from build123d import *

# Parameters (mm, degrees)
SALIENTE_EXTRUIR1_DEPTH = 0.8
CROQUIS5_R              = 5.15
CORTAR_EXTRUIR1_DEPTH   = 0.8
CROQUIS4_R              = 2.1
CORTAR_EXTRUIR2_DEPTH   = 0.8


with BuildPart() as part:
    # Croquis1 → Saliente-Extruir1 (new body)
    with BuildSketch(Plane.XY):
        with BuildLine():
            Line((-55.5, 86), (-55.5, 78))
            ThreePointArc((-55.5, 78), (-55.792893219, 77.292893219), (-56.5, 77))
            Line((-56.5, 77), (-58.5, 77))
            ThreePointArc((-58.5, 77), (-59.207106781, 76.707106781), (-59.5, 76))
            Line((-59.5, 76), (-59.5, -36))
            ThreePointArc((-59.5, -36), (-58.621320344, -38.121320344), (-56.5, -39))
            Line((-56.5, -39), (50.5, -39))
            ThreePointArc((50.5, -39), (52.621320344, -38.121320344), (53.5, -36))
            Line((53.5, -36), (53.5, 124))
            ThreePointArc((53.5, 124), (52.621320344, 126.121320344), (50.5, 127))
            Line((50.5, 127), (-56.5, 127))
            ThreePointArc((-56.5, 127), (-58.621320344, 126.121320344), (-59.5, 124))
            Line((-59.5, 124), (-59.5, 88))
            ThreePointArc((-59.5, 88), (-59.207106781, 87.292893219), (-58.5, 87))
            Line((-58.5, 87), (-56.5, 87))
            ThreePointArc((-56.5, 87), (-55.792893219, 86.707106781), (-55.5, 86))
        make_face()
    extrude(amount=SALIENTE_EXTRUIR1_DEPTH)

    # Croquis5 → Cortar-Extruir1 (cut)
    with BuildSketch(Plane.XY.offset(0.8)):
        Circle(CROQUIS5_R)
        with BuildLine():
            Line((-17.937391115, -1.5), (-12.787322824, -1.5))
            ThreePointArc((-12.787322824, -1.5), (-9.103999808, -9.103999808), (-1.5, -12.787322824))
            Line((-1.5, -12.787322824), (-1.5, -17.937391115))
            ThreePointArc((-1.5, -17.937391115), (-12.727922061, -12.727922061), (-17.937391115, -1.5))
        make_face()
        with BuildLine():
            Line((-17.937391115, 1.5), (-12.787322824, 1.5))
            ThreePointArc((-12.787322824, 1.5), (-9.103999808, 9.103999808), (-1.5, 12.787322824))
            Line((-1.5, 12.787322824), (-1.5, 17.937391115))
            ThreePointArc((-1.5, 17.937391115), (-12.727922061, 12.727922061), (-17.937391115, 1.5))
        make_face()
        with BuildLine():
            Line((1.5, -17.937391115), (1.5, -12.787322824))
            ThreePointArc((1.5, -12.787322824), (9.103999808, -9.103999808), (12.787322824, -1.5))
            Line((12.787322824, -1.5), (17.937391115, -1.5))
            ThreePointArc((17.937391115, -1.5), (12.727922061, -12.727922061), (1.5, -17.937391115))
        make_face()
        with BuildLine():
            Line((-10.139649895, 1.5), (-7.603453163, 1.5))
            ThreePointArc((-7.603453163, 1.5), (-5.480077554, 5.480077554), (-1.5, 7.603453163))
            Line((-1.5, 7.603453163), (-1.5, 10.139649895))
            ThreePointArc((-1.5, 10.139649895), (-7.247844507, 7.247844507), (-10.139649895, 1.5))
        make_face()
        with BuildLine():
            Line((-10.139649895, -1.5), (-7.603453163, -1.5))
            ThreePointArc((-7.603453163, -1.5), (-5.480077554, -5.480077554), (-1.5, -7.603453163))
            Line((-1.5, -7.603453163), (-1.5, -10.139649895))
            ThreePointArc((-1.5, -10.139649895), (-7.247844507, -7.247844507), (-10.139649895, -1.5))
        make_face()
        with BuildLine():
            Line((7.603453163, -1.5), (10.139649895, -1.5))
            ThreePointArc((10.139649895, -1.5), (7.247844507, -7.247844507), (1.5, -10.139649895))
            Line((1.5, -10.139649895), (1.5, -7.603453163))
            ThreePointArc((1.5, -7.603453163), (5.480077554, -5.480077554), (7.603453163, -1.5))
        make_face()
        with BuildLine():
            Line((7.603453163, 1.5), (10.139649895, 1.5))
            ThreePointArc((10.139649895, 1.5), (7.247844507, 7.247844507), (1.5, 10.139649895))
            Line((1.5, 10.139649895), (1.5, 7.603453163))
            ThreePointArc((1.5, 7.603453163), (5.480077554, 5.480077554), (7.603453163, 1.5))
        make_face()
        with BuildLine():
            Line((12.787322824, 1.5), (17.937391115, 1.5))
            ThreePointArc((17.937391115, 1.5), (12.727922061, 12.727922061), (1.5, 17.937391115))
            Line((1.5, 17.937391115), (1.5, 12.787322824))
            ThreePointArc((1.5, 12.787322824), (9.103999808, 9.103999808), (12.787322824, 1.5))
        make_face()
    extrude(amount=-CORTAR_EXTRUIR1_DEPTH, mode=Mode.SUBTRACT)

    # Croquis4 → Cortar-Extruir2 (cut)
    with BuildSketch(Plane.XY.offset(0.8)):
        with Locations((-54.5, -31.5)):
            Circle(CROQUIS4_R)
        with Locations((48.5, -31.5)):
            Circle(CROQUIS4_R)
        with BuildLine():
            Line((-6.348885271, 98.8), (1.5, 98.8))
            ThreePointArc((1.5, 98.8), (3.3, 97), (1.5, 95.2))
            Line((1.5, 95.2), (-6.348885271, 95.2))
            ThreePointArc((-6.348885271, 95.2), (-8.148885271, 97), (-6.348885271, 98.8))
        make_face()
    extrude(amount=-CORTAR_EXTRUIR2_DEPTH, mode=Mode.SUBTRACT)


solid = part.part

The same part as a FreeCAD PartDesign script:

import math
import FreeCAD as App
import Part
import Sketcher
from FreeCAD import Vector
Q = App.Units.Quantity

doc = App.newDocument("Part")
params = doc.addObject("Spreadsheet::Sheet", "Params")
for row, (alias, value) in enumerate([
    ("sketch1_radius", "1 mm"),
    ("sketch1_radius2", "3 mm"),
    ("sketch1_width", "107 mm"),
    ("sketch1_height", "8 mm"),
    ("sketch1_height2", "112 mm"),
    ("pad1_length", "0.8 mm"),
    ("sketch2_radius", "18 mm"),
    ("sketch2_diameter", "10.3 mm"),
    ("sketch2_radius2", "7.75 mm"),
    ("sketch2_radius3", "10.25 mm"),
    ("pocket1_length", "0.8 mm"),
    ("sketch3_diameter", "4.2 mm"),
    ("sketch3_radius", "1.8 mm"),
    ("pocket2_length", "0.8 mm"),
], start=1):
    params.set(f"A{row}", alias)
    params.set(f"B{row}", "=" + value)
    params.setAlias(f"B{row}", alias)

body = doc.addObject("PartDesign::Body", "Body")

# Sketch on XY plane
sketch1 = doc.addObject("Sketcher::SketchObject", "Sketch")
body.addObject(sketch1)
sketch1.AttachmentSupport = (doc.XY_Plane, [""])
sketch1.MapMode = "FlatFace"
sketch1.addGeometry(Part.LineSegment(Vector(-55.5, 86, 0), Vector(-55.5, 78, 0)), False)
sketch1.addGeometry(Part.ArcOfCircle(Part.Circle(Vector(-56.5, 78, 0), Vector(0, 0, 1), 1), math.radians(-90), math.radians(0)), False)
sketch1.addGeometry(Part.LineSegment(Vector(-56.5, 77, 0), Vector(-58.5, 77, 0)), False)
sketch1.addGeometry(Part.ArcOfCircle(Part.Circle(Vector(-58.5, 76, 0), Vector(0, 0, 1), 1), math.radians(90), math.radians(180)), False)
sketch1.addGeometry(Part.LineSegment(Vector(-59.5, 76, 0), Vector(-59.5, -36, 0)), False)
sketch1.addGeometry(Part.ArcOfCircle(Part.Circle(Vector(-56.5, -36, 0), Vector(0, 0, 1), 3), math.radians(180), math.radians(270)), False)
sketch1.addGeometry(Part.LineSegment(Vector(-56.5, -39, 0), Vector(50.5, -39, 0)), False)
sketch1.addGeometry(Part.ArcOfCircle(Part.Circle(Vector(50.5, -36, 0), Vector(0, 0, 1), 3), math.radians(-90), math.radians(0)), False)
sketch1.addGeometry(Part.LineSegment(Vector(53.5, -36, 0), Vector(53.5, 124, 0)), False)
sketch1.addGeometry(Part.ArcOfCircle(Part.Circle(Vector(50.5, 124, 0), Vector(0, 0, 1), 3), math.radians(0), math.radians(90)), False)
sketch1.addGeometry(Part.LineSegment(Vector(50.5, 127, 0), Vector(-56.5, 127, 0)), False)
sketch1.addGeometry(Part.ArcOfCircle(Part.Circle(Vector(-56.5, 124, 0), Vector(0, 0, 1), 3), math.radians(90), math.radians(180)), False)
sketch1.addGeometry(Part.LineSegment(Vector(-59.5, 124, 0), Vector(-59.5, 88, 0)), False)
sketch1.addGeometry(Part.ArcOfCircle(Part.Circle(Vector(-58.5, 88, 0), Vector(0, 0, 1), 1), math.radians(-180), math.radians(-90)), False)
sketch1.addGeometry(Part.LineSegment(Vector(-58.5, 87, 0), Vector(-56.5, 87, 0)), False)
sketch1.addGeometry(Part.ArcOfCircle(Part.Circle(Vector(-56.5, 86, 0), Vector(0, 0, 1), 1), math.radians(0), math.radians(90)), False)
sketch1.addConstraint(Sketcher.Constraint("Tangent", 0, 2, 1, 2))
sketch1.addConstraint(Sketcher.Constraint("Tangent", 1, 1, 2, 1))
sketch1.addConstraint(Sketcher.Constraint("Tangent", 2, 2, 3, 1))
sketch1.addConstraint(Sketcher.Constraint("Tangent", 3, 2, 4, 1))
sketch1.addConstraint(Sketcher.Constraint("Tangent", 4, 2, 5, 1))
sketch1.addConstraint(Sketcher.Constraint("Tangent", 5, 2, 6, 1))
sketch1.addConstraint(Sketcher.Constraint("Tangent", 6, 2, 7, 1))
sketch1.addConstraint(Sketcher.Constraint("Tangent", 7, 2, 8, 1))
sketch1.addConstraint(Sketcher.Constraint("Tangent", 8, 2, 9, 1))
sketch1.addConstraint(Sketcher.Constraint("Tangent", 9, 2, 10, 1))
sketch1.addConstraint(Sketcher.Constraint("Tangent", 10, 2, 11, 1))
sketch1.addConstraint(Sketcher.Constraint("Tangent", 11, 2, 12, 1))
sketch1.addConstraint(Sketcher.Constraint("Tangent", 12, 2, 13, 1))
sketch1.addConstraint(Sketcher.Constraint("Tangent", 13, 2, 14, 1))
sketch1.addConstraint(Sketcher.Constraint("Tangent", 14, 2, 15, 2))
sketch1.addConstraint(Sketcher.Constraint("Tangent", 15, 1, 0, 1))
sketch1.addConstraint(Sketcher.Constraint("Vertical", 0))
sketch1.addConstraint(Sketcher.Constraint("Horizontal", 2))
sketch1.addConstraint(Sketcher.Constraint("Vertical", 4))
sketch1.addConstraint(Sketcher.Constraint("Horizontal", 6))
sketch1.addConstraint(Sketcher.Constraint("Vertical", 8))
sketch1.addConstraint(Sketcher.Constraint("Horizontal", 10))
sketch1.addConstraint(Sketcher.Constraint("Vertical", 12))
sketch1.addConstraint(Sketcher.Constraint("Horizontal", 14))
sketch1.addConstraint(Sketcher.Constraint("Equal", 1, 3))
sketch1.addConstraint(Sketcher.Constraint("Equal", 5, 7))
sketch1.addConstraint(Sketcher.Constraint("Equal", 7, 9))
sketch1.addConstraint(Sketcher.Constraint("Equal", 9, 11))
sketch1.addConstraint(Sketcher.Constraint("Equal", 3, 13))
sketch1.addConstraint(Sketcher.Constraint("Equal", 13, 15))
sketch1.addConstraint(Sketcher.Constraint("Vertical", 1, 3, 5, 3))
sketch1.addConstraint(Sketcher.Constraint("Vertical", 5, 3, 11, 3))
sketch1.addConstraint(Sketcher.Constraint("Radius", 1, Q("1 mm")))
sketch1.addConstraint(Sketcher.Constraint("Radius", 5, Q("3 mm")))
sketch1.addConstraint(Sketcher.Constraint("DistanceX", 6, 1, 6, 2, Q("107 mm")))
sketch1.addConstraint(Sketcher.Constraint("DistanceY", 0, 2, 0, 1, Q("8 mm")))
sketch1.addConstraint(Sketcher.Constraint("DistanceY", 4, 2, 4, 1, Q("112 mm")))
sketch1.addConstraint(Sketcher.Constraint("DistanceY", 8, 1, 8, 2, Q("160 mm")))
sketch1.addConstraint(Sketcher.Constraint("DistanceY", -1, 1, 1, 3, Q("78 mm")))
sketch1.addConstraint(Sketcher.Constraint("DistanceX", 1, 3, -1, 1, Q("56.5 mm")))
sketch1.setExpression("Constraints[32]", "Params.sketch1_radius")
sketch1.setExpression("Constraints[33]", "Params.sketch1_radius2")
sketch1.setExpression("Constraints[34]", "Params.sketch1_width")
sketch1.setExpression("Constraints[35]", "Params.sketch1_height")
sketch1.setExpression("Constraints[36]", "Params.sketch1_height2")
pad1 = doc.addObject("PartDesign::Pad", "Pad")
body.addObject(pad1)
pad1.Profile = sketch1
pad1.setExpression("Length", "Params.pad1_length")

# Sketch on XY plane
sketch2 = doc.addObject("Sketcher::SketchObject", "Sketch001")
body.addObject(sketch2)
sketch2.AttachmentSupport = (doc.XY_Plane, [""])
sketch2.MapMode = "FlatFace"
sketch2.AttachmentOffset = App.Placement(Vector(0, 0, 0.8), App.Rotation())
sketch2.addGeometry(Part.Circle(Vector(0, 0, 0), Vector(0, 0, 1), 5.2), False)
sketch2.addGeometry(Part.LineSegment(Vector(-12.8, -1.5, 0), Vector(-17.9, -1.5, 0)), False)
sketch2.addGeometry(Part.ArcOfCircle(Part.Circle(Vector(0, 0, 0), Vector(0, 0, 1), 18), math.radians(-175), math.radians(-95)), False)
sketch2.addGeometry(Part.LineSegment(Vector(-1.5, -17.9, 0), Vector(-1.5, -12.8, 0)), False)
sketch2.addGeometry(Part.ArcOfCircle(Part.Circle(Vector(0, 0, 0), Vector(0, 0, 1), 12.9), math.radians(-173), math.radians(-97)), False)
sketch2.addGeometry(Part.LineSegment(Vector(-17.9, 1.5, 0), Vector(-12.8, 1.5, 0)), False)
sketch2.addGeometry(Part.ArcOfCircle(Part.Circle(Vector(0, 0, 0), Vector(0, 0, 1), 12.9), math.radians(97), math.radians(173)), False)
sketch2.addGeometry(Part.LineSegment(Vector(-1.5, 12.8, 0), Vector(-1.5, 17.9, 0)), False)
sketch2.addGeometry(Part.ArcOfCircle(Part.Circle(Vector(0, 0, 0), Vector(0, 0, 1), 18), math.radians(95), math.radians(175)), False)
sketch2.addGeometry(Part.LineSegment(Vector(1.5, -12.8, 0), Vector(1.5, -17.9, 0)), False)
sketch2.addGeometry(Part.ArcOfCircle(Part.Circle(Vector(0, 0, 0), Vector(0, 0, 1), 18), math.radians(-85), math.radians(-5)), False)
sketch2.addGeometry(Part.LineSegment(Vector(17.9, -1.5, 0), Vector(12.8, -1.5, 0)), False)
sketch2.addGeometry(Part.ArcOfCircle(Part.Circle(Vector(0, 0, 0), Vector(0, 0, 1), 12.9), math.radians(-83), math.radians(-7)), False)
sketch2.addGeometry(Part.LineSegment(Vector(-10.1, 1.5, 0), Vector(-7.6, 1.5, 0)), False)
sketch2.addGeometry(Part.ArcOfCircle(Part.Circle(Vector(0, 0, 0), Vector(0, 0, 1), 7.8), math.radians(101), math.radians(169)), False)
sketch2.addGeometry(Part.LineSegment(Vector(-1.5, 7.6, 0), Vector(-1.5, 10.1, 0)), False)
sketch2.addGeometry(Part.ArcOfCircle(Part.Circle(Vector(0, 0, 0), Vector(0, 0, 1), 10.2), math.radians(98), math.radians(172)), False)
sketch2.addGeometry(Part.LineSegment(Vector(-7.6, -1.5, 0), Vector(-10.1, -1.5, 0)), False)
sketch2.addGeometry(Part.ArcOfCircle(Part.Circle(Vector(0, 0, 0), Vector(0, 0, 1), 10.2), math.radians(-172), math.radians(-98)), False)
sketch2.addGeometry(Part.LineSegment(Vector(-1.5, -10.1, 0), Vector(-1.5, -7.6, 0)), False)
sketch2.addGeometry(Part.ArcOfCircle(Part.Circle(Vector(0, 0, 0), Vector(0, 0, 1), 7.8), math.radians(-169), math.radians(-101)), False)
sketch2.addGeometry(Part.LineSegment(Vector(10.1, -1.5, 0), Vector(7.6, -1.5, 0)), False)
sketch2.addGeometry(Part.ArcOfCircle(Part.Circle(Vector(0, 0, 0), Vector(0, 0, 1), 7.8), math.radians(-79), math.radians(-11)), False)
sketch2.addGeometry(Part.LineSegment(Vector(1.5, -7.6, 0), Vector(1.5, -10.1, 0)), False)
sketch2.addGeometry(Part.ArcOfCircle(Part.Circle(Vector(0, 0, 0), Vector(0, 0, 1), 10.2), math.radians(-82), math.radians(-8)), False)
sketch2.addGeometry(Part.LineSegment(Vector(7.6, 1.5, 0), Vector(10.1, 1.5, 0)), False)
sketch2.addGeometry(Part.ArcOfCircle(Part.Circle(Vector(0, 0, 0), Vector(0, 0, 1), 10.2), math.radians(8), math.radians(82)), False)
sketch2.addGeometry(Part.LineSegment(Vector(1.5, 10.1, 0), Vector(1.5, 7.6, 0)), False)
sketch2.addGeometry(Part.ArcOfCircle(Part.Circle(Vector(0, 0, 0), Vector(0, 0, 1), 7.8), math.radians(11), math.radians(79)), False)
sketch2.addGeometry(Part.LineSegment(Vector(12.8, 1.5, 0), Vector(17.9, 1.5, 0)), False)
sketch2.addGeometry(Part.ArcOfCircle(Part.Circle(Vector(0, 0, 0), Vector(0, 0, 1), 18), math.radians(5), math.radians(85)), False)
sketch2.addGeometry(Part.LineSegment(Vector(1.5, 17.9, 0), Vector(1.5, 12.8, 0)), False)
sketch2.addGeometry(Part.ArcOfCircle(Part.Circle(Vector(0, 0, 0), Vector(0, 0, 1), 12.9), math.radians(7), math.radians(83)), False)
sketch2.addConstraint(Sketcher.Constraint("Coincident", 1, 2, 2, 1))
sketch2.addConstraint(Sketcher.Constraint("Coincident", 2, 2, 3, 1))
sketch2.addConstraint(Sketcher.Constraint("Coincident", 3, 2, 4, 2))
sketch2.addConstraint(Sketcher.Constraint("Coincident", 4, 1, 1, 1))
sketch2.addConstraint(Sketcher.Constraint("Coincident", 5, 2, 6, 2))
sketch2.addConstraint(Sketcher.Constraint("Coincident", 6, 1, 7, 1))
sketch2.addConstraint(Sketcher.Constraint("Coincident", 7, 2, 8, 1))
sketch2.addConstraint(Sketcher.Constraint("Coincident", 8, 2, 5, 1))
sketch2.addConstraint(Sketcher.Constraint("Coincident", 9, 2, 10, 1))
sketch2.addConstraint(Sketcher.Constraint("Coincident", 10, 2, 11, 1))
sketch2.addConstraint(Sketcher.Constraint("Coincident", 11, 2, 12, 2))
sketch2.addConstraint(Sketcher.Constraint("Coincident", 12, 1, 9, 1))
sketch2.addConstraint(Sketcher.Constraint("Coincident", 13, 2, 14, 2))
sketch2.addConstraint(Sketcher.Constraint("Coincident", 14, 1, 15, 1))
sketch2.addConstraint(Sketcher.Constraint("Coincident", 15, 2, 16, 1))
sketch2.addConstraint(Sketcher.Constraint("Coincident", 16, 2, 13, 1))
sketch2.addConstraint(Sketcher.Constraint("Coincident", 17, 2, 18, 1))
sketch2.addConstraint(Sketcher.Constraint("Coincident", 18, 2, 19, 1))
sketch2.addConstraint(Sketcher.Constraint("Coincident", 19, 2, 20, 2))
sketch2.addConstraint(Sketcher.Constraint("Coincident", 20, 1, 17, 1))
sketch2.addConstraint(Sketcher.Constraint("Coincident", 21, 2, 22, 2))
sketch2.addConstraint(Sketcher.Constraint("Coincident", 22, 1, 23, 1))
sketch2.addConstraint(Sketcher.Constraint("Coincident", 23, 2, 24, 1))
sketch2.addConstraint(Sketcher.Constraint("Coincident", 24, 2, 21, 1))
sketch2.addConstraint(Sketcher.Constraint("Coincident", 25, 2, 26, 1))
sketch2.addConstraint(Sketcher.Constraint("Coincident", 26, 2, 27, 1))
sketch2.addConstraint(Sketcher.Constraint("Coincident", 27, 2, 28, 2))
sketch2.addConstraint(Sketcher.Constraint("Coincident", 28, 1, 25, 1))
sketch2.addConstraint(Sketcher.Constraint("Coincident", 29, 2, 30, 1))
sketch2.addConstraint(Sketcher.Constraint("Coincident", 30, 2, 31, 1))
sketch2.addConstraint(Sketcher.Constraint("Coincident", 31, 2, 32, 2))
sketch2.addConstraint(Sketcher.Constraint("Coincident", 32, 1, 29, 1))
sketch2.addConstraint(Sketcher.Constraint("Horizontal", 1))
sketch2.addConstraint(Sketcher.Constraint("Vertical", 3))
sketch2.addConstraint(Sketcher.Constraint("Horizontal", 5))
sketch2.addConstraint(Sketcher.Constraint("Vertical", 7))
sketch2.addConstraint(Sketcher.Constraint("Vertical", 9))
sketch2.addConstraint(Sketcher.Constraint("Horizontal", 11))
sketch2.addConstraint(Sketcher.Constraint("Horizontal", 13))
sketch2.addConstraint(Sketcher.Constraint("Vertical", 15))
sketch2.addConstraint(Sketcher.Constraint("Horizontal", 17))
sketch2.addConstraint(Sketcher.Constraint("Vertical", 19))
sketch2.addConstraint(Sketcher.Constraint("Horizontal", 21))
sketch2.addConstraint(Sketcher.Constraint("Vertical", 23))
sketch2.addConstraint(Sketcher.Constraint("Horizontal", 25))
sketch2.addConstraint(Sketcher.Constraint("Vertical", 27))
sketch2.addConstraint(Sketcher.Constraint("Horizontal", 29))
sketch2.addConstraint(Sketcher.Constraint("Vertical", 31))
sketch2.addConstraint(Sketcher.Constraint("Coincident", 0, 3, -1, 1))
sketch2.addConstraint(Sketcher.Constraint("Coincident", 2, 3, -1, 1))
sketch2.addConstraint(Sketcher.Constraint("Coincident", 4, 3, -1, 1))
sketch2.addConstraint(Sketcher.Constraint("Coincident", 6, 3, -1, 1))
sketch2.addConstraint(Sketcher.Constraint("Coincident", 8, 3, -1, 1))
sketch2.addConstraint(Sketcher.Constraint("Coincident", 10, 3, -1, 1))
sketch2.addConstraint(Sketcher.Constraint("Coincident", 12, 3, -1, 1))
sketch2.addConstraint(Sketcher.Constraint("Coincident", 14, 3, -1, 1))
sketch2.addConstraint(Sketcher.Constraint("Coincident", 16, 3, -1, 1))
sketch2.addConstraint(Sketcher.Constraint("Coincident", 18, 3, -1, 1))
sketch2.addConstraint(Sketcher.Constraint("Coincident", 20, 3, -1, 1))
sketch2.addConstraint(Sketcher.Constraint("Coincident", 22, 3, -1, 1))
sketch2.addConstraint(Sketcher.Constraint("Coincident", 24, 3, -1, 1))
sketch2.addConstraint(Sketcher.Constraint("Coincident", 26, 3, -1, 1))
sketch2.addConstraint(Sketcher.Constraint("Coincident", 28, 3, -1, 1))
sketch2.addConstraint(Sketcher.Constraint("Coincident", 30, 3, -1, 1))
sketch2.addConstraint(Sketcher.Constraint("Coincident", 32, 3, -1, 1))
sketch2.addConstraint(Sketcher.Constraint("Equal", 4, 6))
sketch2.addConstraint(Sketcher.Constraint("Equal", 2, 8))
sketch2.addConstraint(Sketcher.Constraint("Equal", 8, 10))
sketch2.addConstraint(Sketcher.Constraint("Equal", 6, 12))
sketch2.addConstraint(Sketcher.Constraint("Equal", 16, 18))
sketch2.addConstraint(Sketcher.Constraint("Equal", 14, 20))
sketch2.addConstraint(Sketcher.Constraint("Equal", 20, 22))
sketch2.addConstraint(Sketcher.Constraint("Equal", 18, 24))
sketch2.addConstraint(Sketcher.Constraint("Equal", 24, 26))
sketch2.addConstraint(Sketcher.Constraint("Equal", 22, 28))
sketch2.addConstraint(Sketcher.Constraint("Equal", 10, 30))
sketch2.addConstraint(Sketcher.Constraint("Equal", 12, 32))
sketch2.addConstraint(Sketcher.Constraint("Horizontal", 2, 2, 9, 2))
sketch2.addConstraint(Sketcher.Constraint("Horizontal", 4, 1, 10, 2))
sketch2.addConstraint(Sketcher.Constraint("Horizontal", 8, 2, 13, 2))
sketch2.addConstraint(Sketcher.Constraint("Horizontal", 11, 2, 17, 2))
sketch2.addConstraint(Sketcher.Constraint("Horizontal", 20, 1, 21, 2))
sketch2.addConstraint(Sketcher.Constraint("Horizontal", 19, 2, 22, 1))
sketch2.addConstraint(Sketcher.Constraint("Horizontal", 16, 2, 25, 2))
sketch2.addConstraint(Sketcher.Constraint("Horizontal", 15, 2, 26, 2))
sketch2.addConstraint(Sketcher.Constraint("Horizontal", 28, 1, 29, 2))
sketch2.addConstraint(Sketcher.Constraint("Horizontal", 7, 2, 30, 2))
sketch2.addConstraint(Sketcher.Constraint("Vertical", 4, 1, 5, 2))
sketch2.addConstraint(Sketcher.Constraint("Vertical", 3, 2, 6, 1))
sketch2.addConstraint(Sketcher.Constraint("Vertical", 7, 2, 14, 1))
sketch2.addConstraint(Sketcher.Constraint("Vertical", 15, 2, 18, 2))
sketch2.addConstraint(Sketcher.Constraint("Equal", 29, 3))
sketch2.addConstraint(Sketcher.Constraint("Radius", 2, Q("18 mm")))
sketch2.addConstraint(Sketcher.Constraint("Diameter", 0, Q("10.3 mm")))
sketch2.addConstraint(Sketcher.Constraint("Radius", 14, Q("7.75 mm")))
sketch2.addConstraint(Sketcher.Constraint("Radius", 16, Q("10.25 mm")))
sketch2.addConstraint(Sketcher.Constraint("Radius", 4, Q("12.875 mm")))
sketch2.addConstraint(Sketcher.Constraint("DistanceY", 4, 1, 5, 2, Q("3 mm")))
sketch2.setExpression("Constraints[92]", "Params.sketch2_radius")
sketch2.setExpression("Constraints[93]", "Params.sketch2_diameter")
sketch2.setExpression("Constraints[94]", "Params.sketch2_radius2")
sketch2.setExpression("Constraints[95]", "Params.sketch2_radius3")
pocket1 = doc.addObject("PartDesign::Pocket", "Pocket")
body.addObject(pocket1)
pocket1.Profile = sketch2
pocket1.setExpression("Length", "Params.pocket1_length")

# Sketch on XY plane
sketch3 = doc.addObject("Sketcher::SketchObject", "Sketch002")
body.addObject(sketch3)
sketch3.AttachmentSupport = (doc.XY_Plane, [""])
sketch3.MapMode = "FlatFace"
sketch3.AttachmentOffset = App.Placement(Vector(0, 0, 0.8), App.Rotation())
sketch3.addGeometry(Part.Circle(Vector(-54.5, -31.5, 0), Vector(0, 0, 1), 2.1), False)
sketch3.addGeometry(Part.Circle(Vector(48.5, -31.5, 0), Vector(0, 0, 1), 2.1), False)
sketch3.addGeometry(Part.LineSegment(Vector(1.5, 98.8, 0), Vector(-6.3, 98.8, 0)), False)
sketch3.addGeometry(Part.ArcOfCircle(Part.Circle(Vector(-6.3, 97, 0), Vector(0, 0, 1), 1.8), math.radians(90), math.radians(270)), False)
sketch3.addGeometry(Part.LineSegment(Vector(-6.3, 95.2, 0), Vector(1.5, 95.2, 0)), False)
sketch3.addGeometry(Part.ArcOfCircle(Part.Circle(Vector(1.5, 97, 0), Vector(0, 0, 1), 1.8), math.radians(-90), math.radians(90)), False)
sketch3.addConstraint(Sketcher.Constraint("Tangent", 2, 2, 3, 1))
sketch3.addConstraint(Sketcher.Constraint("Tangent", 3, 2, 4, 1))
sketch3.addConstraint(Sketcher.Constraint("Tangent", 4, 2, 5, 1))
sketch3.addConstraint(Sketcher.Constraint("Tangent", 5, 2, 2, 1))
sketch3.addConstraint(Sketcher.Constraint("Horizontal", 2))
sketch3.addConstraint(Sketcher.Constraint("Horizontal", 4))
sketch3.addConstraint(Sketcher.Constraint("Equal", 0, 1))
sketch3.addConstraint(Sketcher.Constraint("Horizontal", 0, 3, 1, 3))
sketch3.addConstraint(Sketcher.Constraint("Diameter", 0, Q("4.2 mm")))
sketch3.addConstraint(Sketcher.Constraint("Radius", 3, Q("1.8 mm")))
sketch3.addConstraint(Sketcher.Constraint("DistanceY", -1, 1, 3, 3, Q("97 mm")))
sketch3.addConstraint(Sketcher.Constraint("DistanceX", 0, 3, 1, 3, Q("103 mm")))
sketch3.addConstraint(Sketcher.Constraint("DistanceX", 5, 3, 1, 3, Q("47 mm")))
sketch3.addConstraint(Sketcher.Constraint("DistanceX", 0, 3, -1, 1, Q("54.5 mm")))
sketch3.addConstraint(Sketcher.Constraint("DistanceY", 0, 3, -1, 1, Q("31.5 mm")))
sketch3.addConstraint(Sketcher.Constraint("DistanceX", 2, 2, 2, 1, Q("7.848885 mm")))
sketch3.setExpression("Constraints[8]", "Params.sketch3_diameter")
sketch3.setExpression("Constraints[9]", "Params.sketch3_radius")
pocket2 = doc.addObject("PartDesign::Pocket", "Pocket001")
body.addObject(pocket2)
pocket2.Profile = sketch3
pocket2.setExpression("Length", "Params.pocket2_length")

doc.recompute()
